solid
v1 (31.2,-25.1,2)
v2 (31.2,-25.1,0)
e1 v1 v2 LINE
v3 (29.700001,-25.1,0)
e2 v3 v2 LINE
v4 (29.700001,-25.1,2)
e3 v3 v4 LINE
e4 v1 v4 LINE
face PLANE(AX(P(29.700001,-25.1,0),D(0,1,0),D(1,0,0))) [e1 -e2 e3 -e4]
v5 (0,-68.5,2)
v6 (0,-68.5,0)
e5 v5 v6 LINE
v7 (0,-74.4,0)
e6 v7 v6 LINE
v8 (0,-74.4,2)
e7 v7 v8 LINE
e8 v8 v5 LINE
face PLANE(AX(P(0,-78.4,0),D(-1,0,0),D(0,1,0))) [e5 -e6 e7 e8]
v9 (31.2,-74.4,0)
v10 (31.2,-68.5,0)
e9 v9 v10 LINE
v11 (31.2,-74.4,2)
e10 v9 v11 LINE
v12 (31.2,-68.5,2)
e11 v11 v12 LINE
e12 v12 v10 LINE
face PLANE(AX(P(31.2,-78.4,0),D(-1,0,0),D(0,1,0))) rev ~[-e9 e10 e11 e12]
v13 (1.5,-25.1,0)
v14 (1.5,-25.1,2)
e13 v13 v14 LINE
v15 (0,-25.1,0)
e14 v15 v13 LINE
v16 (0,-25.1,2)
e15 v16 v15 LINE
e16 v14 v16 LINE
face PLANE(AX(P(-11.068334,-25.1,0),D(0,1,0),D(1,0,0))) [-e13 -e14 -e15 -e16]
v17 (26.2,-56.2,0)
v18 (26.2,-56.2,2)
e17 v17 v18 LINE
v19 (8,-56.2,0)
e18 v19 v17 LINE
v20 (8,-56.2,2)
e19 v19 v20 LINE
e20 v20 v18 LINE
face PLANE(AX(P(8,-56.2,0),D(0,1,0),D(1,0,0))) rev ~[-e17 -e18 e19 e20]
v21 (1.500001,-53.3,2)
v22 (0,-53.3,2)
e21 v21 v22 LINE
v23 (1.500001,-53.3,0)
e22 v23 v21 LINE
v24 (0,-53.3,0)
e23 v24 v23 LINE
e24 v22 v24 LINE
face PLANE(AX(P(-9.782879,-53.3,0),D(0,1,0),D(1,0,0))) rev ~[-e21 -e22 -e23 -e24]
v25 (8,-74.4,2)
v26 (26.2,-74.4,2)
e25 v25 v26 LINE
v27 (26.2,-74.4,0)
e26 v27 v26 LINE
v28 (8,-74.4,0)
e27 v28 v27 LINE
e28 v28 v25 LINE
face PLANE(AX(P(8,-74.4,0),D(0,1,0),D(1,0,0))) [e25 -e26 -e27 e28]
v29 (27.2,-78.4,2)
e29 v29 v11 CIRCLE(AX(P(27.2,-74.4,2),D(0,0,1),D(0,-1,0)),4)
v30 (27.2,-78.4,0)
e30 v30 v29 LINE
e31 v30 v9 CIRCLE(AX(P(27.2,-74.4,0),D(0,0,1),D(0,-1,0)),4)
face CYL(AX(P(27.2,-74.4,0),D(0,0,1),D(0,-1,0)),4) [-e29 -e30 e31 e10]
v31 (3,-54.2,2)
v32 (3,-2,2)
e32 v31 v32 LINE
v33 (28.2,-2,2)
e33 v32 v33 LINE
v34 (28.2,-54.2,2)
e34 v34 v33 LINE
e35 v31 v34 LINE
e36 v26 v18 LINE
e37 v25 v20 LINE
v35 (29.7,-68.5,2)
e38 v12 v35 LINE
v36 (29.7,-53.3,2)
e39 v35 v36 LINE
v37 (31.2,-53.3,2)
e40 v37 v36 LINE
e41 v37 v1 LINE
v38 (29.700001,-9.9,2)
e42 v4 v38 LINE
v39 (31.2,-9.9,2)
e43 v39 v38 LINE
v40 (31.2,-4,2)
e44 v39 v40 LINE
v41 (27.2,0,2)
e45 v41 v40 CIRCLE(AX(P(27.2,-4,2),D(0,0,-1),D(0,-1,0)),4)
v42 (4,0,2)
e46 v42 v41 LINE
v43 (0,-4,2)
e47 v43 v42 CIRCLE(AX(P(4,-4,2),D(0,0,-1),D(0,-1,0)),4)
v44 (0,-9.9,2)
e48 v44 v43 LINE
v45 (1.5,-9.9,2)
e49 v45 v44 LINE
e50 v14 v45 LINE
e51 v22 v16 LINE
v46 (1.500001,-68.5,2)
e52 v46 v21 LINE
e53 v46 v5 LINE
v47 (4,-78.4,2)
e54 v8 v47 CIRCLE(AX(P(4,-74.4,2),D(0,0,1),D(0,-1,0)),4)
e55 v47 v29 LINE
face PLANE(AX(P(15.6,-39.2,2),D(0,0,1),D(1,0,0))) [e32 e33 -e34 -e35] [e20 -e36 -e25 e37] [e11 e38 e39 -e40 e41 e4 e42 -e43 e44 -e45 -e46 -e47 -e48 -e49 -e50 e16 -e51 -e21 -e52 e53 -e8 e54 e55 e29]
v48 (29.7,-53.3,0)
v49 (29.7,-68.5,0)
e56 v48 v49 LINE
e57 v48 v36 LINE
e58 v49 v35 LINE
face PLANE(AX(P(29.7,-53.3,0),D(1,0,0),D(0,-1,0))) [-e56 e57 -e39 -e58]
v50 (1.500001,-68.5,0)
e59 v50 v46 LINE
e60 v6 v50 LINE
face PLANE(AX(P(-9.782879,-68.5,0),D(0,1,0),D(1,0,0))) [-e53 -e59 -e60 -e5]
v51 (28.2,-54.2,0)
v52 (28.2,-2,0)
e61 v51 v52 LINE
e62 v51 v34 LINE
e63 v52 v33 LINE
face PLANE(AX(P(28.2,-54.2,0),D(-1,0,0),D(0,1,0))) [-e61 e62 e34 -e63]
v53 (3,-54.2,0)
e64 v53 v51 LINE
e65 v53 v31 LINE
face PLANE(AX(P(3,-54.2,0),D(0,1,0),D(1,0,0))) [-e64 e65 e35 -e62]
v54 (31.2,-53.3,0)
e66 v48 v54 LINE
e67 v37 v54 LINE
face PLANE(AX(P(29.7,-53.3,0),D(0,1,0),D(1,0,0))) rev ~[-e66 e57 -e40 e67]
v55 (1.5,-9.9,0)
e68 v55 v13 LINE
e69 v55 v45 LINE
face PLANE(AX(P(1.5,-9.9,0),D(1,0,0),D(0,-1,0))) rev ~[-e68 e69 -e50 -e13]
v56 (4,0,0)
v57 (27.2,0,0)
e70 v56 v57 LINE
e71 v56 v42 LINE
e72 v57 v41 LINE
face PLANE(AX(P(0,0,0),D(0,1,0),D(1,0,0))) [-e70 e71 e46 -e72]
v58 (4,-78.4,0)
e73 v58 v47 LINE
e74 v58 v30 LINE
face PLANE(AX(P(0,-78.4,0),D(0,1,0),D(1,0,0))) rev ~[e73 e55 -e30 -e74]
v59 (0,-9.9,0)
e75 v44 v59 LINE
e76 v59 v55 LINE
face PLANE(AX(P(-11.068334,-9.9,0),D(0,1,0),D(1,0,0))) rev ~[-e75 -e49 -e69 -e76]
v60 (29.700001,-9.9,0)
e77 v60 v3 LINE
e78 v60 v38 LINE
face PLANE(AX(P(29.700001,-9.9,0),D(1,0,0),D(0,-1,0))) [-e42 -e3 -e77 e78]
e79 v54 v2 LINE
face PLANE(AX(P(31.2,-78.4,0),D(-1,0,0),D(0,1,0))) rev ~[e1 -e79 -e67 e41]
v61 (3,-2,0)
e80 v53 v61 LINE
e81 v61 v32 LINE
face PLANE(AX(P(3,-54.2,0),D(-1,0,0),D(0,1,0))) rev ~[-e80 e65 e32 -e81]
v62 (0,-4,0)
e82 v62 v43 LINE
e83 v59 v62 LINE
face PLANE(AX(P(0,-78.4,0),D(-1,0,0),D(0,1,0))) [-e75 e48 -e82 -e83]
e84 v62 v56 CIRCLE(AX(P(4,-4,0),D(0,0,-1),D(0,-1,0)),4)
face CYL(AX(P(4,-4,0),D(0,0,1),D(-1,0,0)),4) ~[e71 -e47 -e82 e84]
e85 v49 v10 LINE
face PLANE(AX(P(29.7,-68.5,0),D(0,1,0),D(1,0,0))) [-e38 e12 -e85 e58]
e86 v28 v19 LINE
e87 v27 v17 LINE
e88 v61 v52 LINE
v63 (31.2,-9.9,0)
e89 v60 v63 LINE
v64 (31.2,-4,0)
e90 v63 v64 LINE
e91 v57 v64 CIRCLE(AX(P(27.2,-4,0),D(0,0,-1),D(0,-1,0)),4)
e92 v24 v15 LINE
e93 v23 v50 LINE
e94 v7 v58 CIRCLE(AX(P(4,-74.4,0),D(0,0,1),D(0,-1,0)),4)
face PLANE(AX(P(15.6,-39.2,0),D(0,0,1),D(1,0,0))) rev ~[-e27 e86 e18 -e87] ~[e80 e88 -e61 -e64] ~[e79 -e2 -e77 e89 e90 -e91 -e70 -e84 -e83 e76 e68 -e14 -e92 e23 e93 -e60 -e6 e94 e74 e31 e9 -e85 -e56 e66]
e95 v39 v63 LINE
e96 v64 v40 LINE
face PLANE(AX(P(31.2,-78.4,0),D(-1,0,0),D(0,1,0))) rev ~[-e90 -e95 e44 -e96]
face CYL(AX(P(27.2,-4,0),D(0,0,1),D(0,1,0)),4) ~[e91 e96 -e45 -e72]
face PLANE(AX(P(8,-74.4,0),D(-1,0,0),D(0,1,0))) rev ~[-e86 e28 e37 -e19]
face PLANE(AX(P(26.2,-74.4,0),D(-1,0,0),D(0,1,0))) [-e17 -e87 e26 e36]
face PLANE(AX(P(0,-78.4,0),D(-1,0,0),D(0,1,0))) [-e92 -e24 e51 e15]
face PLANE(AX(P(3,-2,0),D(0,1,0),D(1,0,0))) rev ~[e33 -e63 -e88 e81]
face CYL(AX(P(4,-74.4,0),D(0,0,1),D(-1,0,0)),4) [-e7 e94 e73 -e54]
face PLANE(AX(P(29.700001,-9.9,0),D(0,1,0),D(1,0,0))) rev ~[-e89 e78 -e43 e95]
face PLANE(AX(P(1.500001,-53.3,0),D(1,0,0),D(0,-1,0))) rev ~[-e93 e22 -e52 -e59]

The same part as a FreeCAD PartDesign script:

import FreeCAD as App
import Part
import Sketcher
Q = App.Units.Quantity


def edges_at(feature, points):
    """Names of the edges that pass closest to the given points."""
    edges = feature.Shape.Edges
    near = lambda p: min(range(len(edges)), key=lambda i: edges[i].distToShape(Part.Vertex(*p))[0])
    return sorted({f"Edge{near(p) + 1}" for p in points})

doc = App.newDocument("Part")
body = doc.addObject("PartDesign::Body", "Body")

sketch1 = body.newObject("Sketcher::SketchObject", "Sketch")
sketch1.AttachmentSupport = (doc.getObject("XY_Plane"), [""])
sketch1.MapMode = "FlatFace"
sketch1.addGeometry([
    Part.LineSegment(App.Vector(0, 0, 0), App.Vector(0, -78.4, 0)),
    Part.LineSegment(App.Vector(0, -78.4, 0), App.Vector(31.2, -78.4, 0)),
    Part.LineSegment(App.Vector(31.2, -78.4, 0), App.Vector(31.2, 0, 0)),
    Part.LineSegment(App.Vector(31.2, 0, 0), App.Vector(0, 0, 0)),
    Part.LineSegment(App.Vector(26.2, -74.4, 0), App.Vector(8, -74.4, 0)),
    Part.LineSegment(App.Vector(8, -74.4, 0), App.Vector(8, -56.2, 0)),
    Part.LineSegment(App.Vector(8, -56.2, 0), App.Vector(26.2, -56.2, 0)),
    Part.LineSegment(App.Vector(26.2, -56.2, 0), App.Vector(26.2, -74.4, 0)),
    Part.LineSegment(App.Vector(28.2, -54.2, 0), App.Vector(3, -54.2, 0)),
    Part.LineSegment(App.Vector(3, -54.2, 0), App.Vector(3, -2, 0)),
    Part.LineSegment(App.Vector(3, -2, 0), App.Vector(28.2, -2, 0)),
    Part.LineSegment(App.Vector(28.2, -2, 0), App.Vector(28.2, -54.2, 0)),
], False)
sketch1.addConstraint([
    Sketcher.Constraint("Coincident", 0, 2, 1, 1),
    Sketcher.Constraint("Coincident", 1, 2, 2, 1),
    Sketcher.Constraint("Coincident", 2, 2, 3, 1),
    Sketcher.Constraint("Coincident", 3, 2, 0, 1),
    Sketcher.Constraint("Coincident", 4, 2, 5, 1),
    Sketcher.Constraint("Coincident", 5, 2, 6, 1),
    Sketcher.Constraint("Coincident", 6, 2, 7, 1),
    Sketcher.Constraint("Coincident", 7, 2, 4, 1),
    Sketcher.Constraint("Coincident", 8, 2, 9, 1),
    Sketcher.Constraint("Coincident", 9, 2, 10, 1),
    Sketcher.Constraint("Coincident", 10, 2, 11, 1),
    Sketcher.Constraint("Coincident", 11, 2, 8, 1),
    Sketcher.Constraint("Vertical", 0),
    Sketcher.Constraint("Horizontal", 1),
    Sketcher.Constraint("Vertical", 2),
    Sketcher.Constraint("Horizontal", 3),
    Sketcher.Constraint("Horizontal", 4),
    Sketcher.Constraint("Vertical", 5),
    Sketcher.Constraint("Horizontal", 6),
    Sketcher.Constraint("Vertical", 7),
    Sketcher.Constraint("Horizontal", 8),
    Sketcher.Constraint("Vertical", 9),
    Sketcher.Constraint("Horizontal", 10),
    Sketcher.Constraint("Vertical", 11),
    Sketcher.Constraint("Coincident", 3, 2, -1, 1),
    Sketcher.Constraint("Equal", 6, 5),
    Sketcher.Constraint("DistanceX", 1, 1, 1, 2, Q("31.2 mm")),
    Sketcher.Constraint("DistanceX", 4, 2, 4, 1, Q("18.2 mm")),
    Sketcher.Constraint("DistanceX", 8, 2, 8, 1, Q("25.2 mm")),
    Sketcher.Constraint("DistanceY", 0, 2, 0, 1, Q("78.4 mm")),
    Sketcher.Constraint("DistanceY", 9, 1, 9, 2, Q("52.2 mm")),
    Sketcher.Constraint("DistanceX", -1, 1, 4, 2, Q("8 mm")),
    Sketcher.Constraint("DistanceX", -1, 1, 8, 2, Q("3 mm")),
    Sketcher.Constraint("DistanceY", 9, 2, -1, 1, Q("2 mm")),
    Sketcher.Constraint("DistanceY", 0, 2, 4, 2, Q("4 mm")),
])
pad1 = body.newObject("PartDesign::Pad", "Pad")
pad1.Profile = sketch1
pad1.Length = 2

sketch2 = body.newObject("Sketcher::SketchObject", "Sketch001")
sketch2.AttachmentSupport = (doc.getObject("XY_Plane"), [""])
sketch2.MapMode = "FlatFace"
sketch2.addGeometry([
    Part.LineSegment(App.Vector(-9.782879, -68.5, 0), App.Vector(-9.782879, -53.3, 0)),
    Part.LineSegment(App.Vector(-9.782879, -53.3, 0), App.Vector(1.500001, -53.3, 0)),
    Part.LineSegment(App.Vector(1.500001, -53.3, 0), App.Vector(1.500001, -68.5, 0)),
    Part.LineSegment(App.Vector(1.500001, -68.5, 0), App.Vector(-9.782879, -68.5, 0)),
    Part.LineSegment(App.Vector(-11.068334, -25.1, 0), App.Vector(-11.068334, -9.9, 0)),
    Part.LineSegment(App.Vector(-11.068334, -9.9, 0), App.Vector(1.5, -9.9, 0)),
    Part.LineSegment(App.Vector(1.5, -9.9, 0), App.Vector(1.5, -25.1, 0)),
    Part.LineSegment(App.Vector(1.5, -25.1, 0), App.Vector(-11.068334, -25.1, 0)),
    Part.LineSegment(App.Vector(29.7, -68.5, 0), App.Vector(29.7, -53.3, 0)),
    Part.LineSegment(App.Vector(29.7, -53.3, 0), App.Vector(58.083078, -53.3, 0)),
    Part.LineSegment(App.Vector(58.083078, -53.3, 0), App.Vector(58.083078, -68.5, 0)),
    Part.LineSegment(App.Vector(58.083078, -68.5, 0), App.Vector(29.7, -68.5, 0)),
    Part.LineSegment(App.Vector(29.700001, -25.1, 0), App.Vector(29.700001, -9.9, 0)),
    Part.LineSegment(App.Vector(29.700001, -9.9, 0), App.Vector(61.622889, -9.9, 0)),
    Part.LineSegment(App.Vector(61.622889, -9.9, 0), App.Vector(61.622889, -25.1, 0)),
    Part.LineSegment(App.Vector(61.622889, -25.1, 0), App.Vector(29.700001, -25.1, 0)),
], False)
sketch2.addConstraint([
    Sketcher.Constraint("Coincident", 0, 2, 1, 1),
    Sketcher.Constraint("Coincident", 1, 2, 2, 1),
    Sketcher.Constraint("Coincident", 2, 2, 3, 1),
    Sketcher.Constraint("Coincident", 3, 2, 0, 1),
    Sketcher.Constraint("Coincident", 4, 2, 5, 1),
    Sketcher.Constraint("Coincident", 5, 2, 6, 1),
    Sketcher.Constraint("Coincident", 6, 2, 7, 1),
    Sketcher.Constraint("Coincident", 7, 2, 4, 1),
    Sketcher.Constraint("Coincident", 8, 2, 9, 1),
    Sketcher.Constraint("Coincident", 9, 2, 10, 1),
    Sketcher.Constraint("Coincident", 10, 2, 11, 1),
    Sketcher.Constraint("Coincident", 11, 2, 8, 1),
    Sketcher.Constraint("Coincident", 12, 2, 13, 1),
    Sketcher.Constraint("Coincident", 13, 2, 14, 1),
    Sketcher.Constraint("Coincident", 14, 2, 15, 1),
    Sketcher.Constraint("Coincident", 15, 2, 12, 1),
    Sketcher.Constraint("Vertical", 0),
    Sketcher.Constraint("Horizontal", 1),
    Sketcher.Constraint("Vertical", 2),
    Sketcher.Constraint("Horizontal", 3),
    Sketcher.Constraint("Vertical", 4),
    Sketcher.Constraint("Horizontal", 5),
    Sketcher.Constraint("Vertical", 6),
    Sketcher.Constraint("Horizontal", 7),
    Sketcher.Constraint("Vertical", 8),
    Sketcher.Constraint("Horizontal", 9),
    Sketcher.Constraint("Vertical", 10),
    Sketcher.Constraint("Horizontal", 11),
    Sketcher.Constraint("Vertical", 12),
    Sketcher.Constraint("Horizontal", 13),
    Sketcher.Constraint("Vertical", 14),
    Sketcher.Constraint("Horizontal", 15),
    Sketcher.Constraint("Horizontal", 1, 2, 8, 2),
    Sketcher.Constraint("Horizontal", 3, 2, 10, 2),
    Sketcher.Constraint("Horizontal", 5, 2, 12, 2),
    Sketcher.Constraint("Horizontal", 7, 2, 14, 2),
    Sketcher.Constraint("Vertical", 2, 2, 5, 2),
    Sketcher.Constraint("Vertical", 11, 2, 12, 2),
    Sketcher.Constraint("Equal", 2, 4),
    Sketcher.Constraint("DistanceY", 0, 1, 0, 2, Q("15.2 mm")),
    Sketcher.Constraint("DistanceY", 0, 2, -1, 1, Q("53.3 mm")),
    Sketcher.Constraint("DistanceX", -1, 1, 1, 2, Q("1.500001 mm")),
    Sketcher.Constraint("DistanceY", 4, 2, -1, 1, Q("9.9 mm")),
    Sketcher.Constraint("DistanceX", -1, 1, 8, 2, Q("29.7 mm")),
    Sketcher.Constraint("DistanceX", 1, 1, 1, 2, Q("11.282879 mm")),
    Sketcher.Constraint("DistanceX", 9, 1, 9, 2, Q("28.383078 mm")),
    Sketcher.Constraint("DistanceX", 13, 1, 13, 2, Q("31.922889 mm")),
    Sketcher.Constraint("DistanceX", 5, 1, 5, 2, Q("12.568334 mm")),
])
pocket1 = body.newObject("PartDesign::Pocket", "Pocket")
pocket1.Profile = sketch2
pocket1.Length = 5
pocket1.Reversed = True
doc.recompute()

fillet = body.newObject("PartDesign::Fillet", "Fillet")
fillet.Base = (pocket1, edges_at(pocket1, [
    (31.2, 0, 1),
    (0, 0, 1),
    (0, -78.4, 1),
    (31.2, -78.4, 1),
]))
fillet.Radius = 4

doc.recompute()
